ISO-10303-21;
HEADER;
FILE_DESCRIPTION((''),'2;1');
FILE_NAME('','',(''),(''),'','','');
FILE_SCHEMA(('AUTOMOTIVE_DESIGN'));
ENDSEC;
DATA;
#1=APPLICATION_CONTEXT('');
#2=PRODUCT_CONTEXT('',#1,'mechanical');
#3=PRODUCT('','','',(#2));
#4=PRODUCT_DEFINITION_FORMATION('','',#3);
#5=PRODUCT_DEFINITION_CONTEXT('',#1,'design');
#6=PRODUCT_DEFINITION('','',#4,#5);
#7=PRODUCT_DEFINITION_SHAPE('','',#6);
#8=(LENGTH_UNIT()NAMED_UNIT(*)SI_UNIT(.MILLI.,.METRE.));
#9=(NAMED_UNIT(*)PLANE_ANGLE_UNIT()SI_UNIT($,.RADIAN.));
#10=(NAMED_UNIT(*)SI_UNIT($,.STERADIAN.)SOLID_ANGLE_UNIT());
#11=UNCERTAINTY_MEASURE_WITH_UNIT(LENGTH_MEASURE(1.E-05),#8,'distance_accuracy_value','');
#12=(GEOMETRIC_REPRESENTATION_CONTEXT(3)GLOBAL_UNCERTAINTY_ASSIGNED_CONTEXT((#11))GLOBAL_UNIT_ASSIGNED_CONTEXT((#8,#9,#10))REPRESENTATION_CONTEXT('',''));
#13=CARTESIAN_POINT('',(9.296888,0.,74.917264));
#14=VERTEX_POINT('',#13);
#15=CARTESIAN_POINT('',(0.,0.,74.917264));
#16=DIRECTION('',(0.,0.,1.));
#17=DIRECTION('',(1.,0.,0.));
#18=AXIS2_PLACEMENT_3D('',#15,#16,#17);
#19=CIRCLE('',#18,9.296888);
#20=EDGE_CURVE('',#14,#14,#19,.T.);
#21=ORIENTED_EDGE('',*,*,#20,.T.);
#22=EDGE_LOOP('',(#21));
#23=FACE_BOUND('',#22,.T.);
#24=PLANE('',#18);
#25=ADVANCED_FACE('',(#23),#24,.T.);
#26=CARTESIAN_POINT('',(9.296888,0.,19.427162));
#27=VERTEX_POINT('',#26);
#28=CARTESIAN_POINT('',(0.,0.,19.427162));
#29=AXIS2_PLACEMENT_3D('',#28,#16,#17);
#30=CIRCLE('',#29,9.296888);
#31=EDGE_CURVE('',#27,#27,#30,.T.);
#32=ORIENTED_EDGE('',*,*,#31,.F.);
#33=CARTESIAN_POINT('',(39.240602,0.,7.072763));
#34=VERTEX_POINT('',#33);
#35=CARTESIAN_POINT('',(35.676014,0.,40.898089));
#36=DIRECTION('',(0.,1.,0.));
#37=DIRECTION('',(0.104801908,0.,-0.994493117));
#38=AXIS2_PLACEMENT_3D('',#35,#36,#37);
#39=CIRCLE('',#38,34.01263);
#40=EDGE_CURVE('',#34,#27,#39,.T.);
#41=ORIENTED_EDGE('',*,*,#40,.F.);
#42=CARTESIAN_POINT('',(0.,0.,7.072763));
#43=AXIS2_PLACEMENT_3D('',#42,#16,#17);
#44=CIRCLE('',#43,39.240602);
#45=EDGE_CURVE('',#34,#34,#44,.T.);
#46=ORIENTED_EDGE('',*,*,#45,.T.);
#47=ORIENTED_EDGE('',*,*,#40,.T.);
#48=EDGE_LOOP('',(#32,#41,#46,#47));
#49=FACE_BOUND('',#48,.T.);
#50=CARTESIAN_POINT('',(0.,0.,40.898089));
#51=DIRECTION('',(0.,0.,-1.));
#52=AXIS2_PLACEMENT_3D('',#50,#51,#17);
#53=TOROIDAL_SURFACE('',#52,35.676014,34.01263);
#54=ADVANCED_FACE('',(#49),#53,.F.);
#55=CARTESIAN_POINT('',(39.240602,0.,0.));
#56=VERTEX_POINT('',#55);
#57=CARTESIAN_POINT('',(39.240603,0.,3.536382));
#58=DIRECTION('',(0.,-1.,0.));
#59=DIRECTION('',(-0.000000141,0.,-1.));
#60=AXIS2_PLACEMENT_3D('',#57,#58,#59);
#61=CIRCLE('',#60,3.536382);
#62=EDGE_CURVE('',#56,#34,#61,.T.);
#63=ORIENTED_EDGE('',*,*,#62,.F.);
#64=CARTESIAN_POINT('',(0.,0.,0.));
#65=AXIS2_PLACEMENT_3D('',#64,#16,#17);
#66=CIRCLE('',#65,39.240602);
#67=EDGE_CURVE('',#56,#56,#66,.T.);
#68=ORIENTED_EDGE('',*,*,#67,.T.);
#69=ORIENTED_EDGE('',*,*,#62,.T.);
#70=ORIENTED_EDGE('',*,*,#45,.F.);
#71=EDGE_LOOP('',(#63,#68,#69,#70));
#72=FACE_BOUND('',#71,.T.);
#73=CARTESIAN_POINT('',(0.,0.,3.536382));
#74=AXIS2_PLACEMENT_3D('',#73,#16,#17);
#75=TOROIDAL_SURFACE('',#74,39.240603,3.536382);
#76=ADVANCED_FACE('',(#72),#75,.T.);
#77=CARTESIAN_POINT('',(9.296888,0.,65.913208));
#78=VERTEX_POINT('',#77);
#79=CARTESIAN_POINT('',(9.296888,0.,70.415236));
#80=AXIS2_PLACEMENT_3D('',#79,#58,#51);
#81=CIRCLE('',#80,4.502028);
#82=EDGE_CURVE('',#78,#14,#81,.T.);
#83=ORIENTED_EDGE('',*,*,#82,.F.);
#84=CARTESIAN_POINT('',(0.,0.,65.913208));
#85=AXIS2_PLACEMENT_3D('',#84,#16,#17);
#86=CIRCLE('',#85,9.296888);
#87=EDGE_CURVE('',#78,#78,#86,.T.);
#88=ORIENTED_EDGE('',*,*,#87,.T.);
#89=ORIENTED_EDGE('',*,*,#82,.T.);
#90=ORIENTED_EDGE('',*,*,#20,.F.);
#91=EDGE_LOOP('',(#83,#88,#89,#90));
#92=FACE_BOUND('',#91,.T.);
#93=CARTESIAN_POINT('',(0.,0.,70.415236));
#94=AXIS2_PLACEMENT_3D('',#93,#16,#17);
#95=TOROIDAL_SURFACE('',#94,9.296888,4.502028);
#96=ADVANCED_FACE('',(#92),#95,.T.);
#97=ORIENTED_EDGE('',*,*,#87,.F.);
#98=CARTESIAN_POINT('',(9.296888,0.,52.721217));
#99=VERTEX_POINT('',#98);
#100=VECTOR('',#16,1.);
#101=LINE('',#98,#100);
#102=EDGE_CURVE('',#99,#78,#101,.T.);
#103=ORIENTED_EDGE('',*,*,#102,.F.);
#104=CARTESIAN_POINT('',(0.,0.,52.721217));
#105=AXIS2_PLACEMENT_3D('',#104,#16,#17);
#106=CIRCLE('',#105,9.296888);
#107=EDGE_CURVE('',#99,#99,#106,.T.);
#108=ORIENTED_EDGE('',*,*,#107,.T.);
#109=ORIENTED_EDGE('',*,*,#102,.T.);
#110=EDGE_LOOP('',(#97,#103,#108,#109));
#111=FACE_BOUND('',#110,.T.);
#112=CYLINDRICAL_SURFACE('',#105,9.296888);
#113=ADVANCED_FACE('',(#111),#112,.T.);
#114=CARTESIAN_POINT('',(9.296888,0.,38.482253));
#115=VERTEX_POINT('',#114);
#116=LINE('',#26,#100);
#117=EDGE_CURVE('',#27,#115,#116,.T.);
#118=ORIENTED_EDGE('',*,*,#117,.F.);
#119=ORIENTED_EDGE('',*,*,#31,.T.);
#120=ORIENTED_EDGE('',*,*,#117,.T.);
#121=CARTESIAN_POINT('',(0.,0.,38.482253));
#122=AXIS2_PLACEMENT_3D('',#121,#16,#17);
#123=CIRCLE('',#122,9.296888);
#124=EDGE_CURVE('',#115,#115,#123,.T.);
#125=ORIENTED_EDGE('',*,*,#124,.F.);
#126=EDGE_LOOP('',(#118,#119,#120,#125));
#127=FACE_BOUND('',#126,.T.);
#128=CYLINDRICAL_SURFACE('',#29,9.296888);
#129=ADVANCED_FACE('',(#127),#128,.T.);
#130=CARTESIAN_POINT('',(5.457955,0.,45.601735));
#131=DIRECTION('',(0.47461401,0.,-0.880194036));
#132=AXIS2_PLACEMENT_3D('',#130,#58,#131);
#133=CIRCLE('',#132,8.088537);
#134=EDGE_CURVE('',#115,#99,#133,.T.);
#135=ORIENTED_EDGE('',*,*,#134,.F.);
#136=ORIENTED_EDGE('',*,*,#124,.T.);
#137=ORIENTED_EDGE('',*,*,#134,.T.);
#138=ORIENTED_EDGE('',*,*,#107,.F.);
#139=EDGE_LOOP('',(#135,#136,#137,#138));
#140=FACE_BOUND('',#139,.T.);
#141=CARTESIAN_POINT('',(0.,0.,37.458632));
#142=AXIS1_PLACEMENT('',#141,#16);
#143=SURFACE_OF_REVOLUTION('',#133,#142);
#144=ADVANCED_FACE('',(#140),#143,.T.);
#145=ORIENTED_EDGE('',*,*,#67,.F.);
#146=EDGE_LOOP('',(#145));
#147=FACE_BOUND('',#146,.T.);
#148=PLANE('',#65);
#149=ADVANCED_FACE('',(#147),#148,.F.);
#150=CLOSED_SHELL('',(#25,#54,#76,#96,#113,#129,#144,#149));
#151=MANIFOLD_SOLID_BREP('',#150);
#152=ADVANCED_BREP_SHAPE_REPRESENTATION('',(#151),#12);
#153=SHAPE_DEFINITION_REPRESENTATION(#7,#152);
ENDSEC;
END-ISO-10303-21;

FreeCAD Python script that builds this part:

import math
import FreeCAD as App
import Part
import Sketcher
from FreeCAD import Vector

doc = App.newDocument("Part")
params = doc.addObject("Spreadsheet::Sheet", "Params")
for row, (alias, value) in enumerate([
    ("revolution_angle", "360 deg"),
], start=1):
    params.set(f"A{row}", alias)
    params.set(f"B{row}", "=" + value)
    params.setAlias(f"B{row}", alias)

body = doc.addObject("PartDesign::Body", "Body")

sketch1 = body.newObject("Sketcher::SketchObject", "Sketch")
sketch1.AttachmentSupport = (doc.getObject("XZ_Plane"), [""])
sketch1.MapMode = "FlatFace"
sketch1.addGeometry(Part.LineSegment(Vector(0, 74.917264, 0), Vector(0, 0, 0)), False)
sketch1.addGeometry(Part.LineSegment(Vector(0, 0, 0), Vector(39.240602, 0, 0)), False)
sketch1.addGeometry(Part.ArcOfCircle(Part.Circle(Vector(39.240603, 3.536382, 0), Vector(0, 0, 1), 3.536382), math.radians(-90.000008), math.radians(90.000008)), False)
sketch1.addGeometry(Part.ArcOfCircle(Part.Circle(Vector(35.676014, 40.898089, 0), Vector(0, 0, 1), 34.01263), math.radians(-140.856607), math.radians(-83.984246)), False)
sketch1.addGeometry(Part.LineSegment(Vector(9.296888, 19.427162, 0), Vector(9.296888, 38.482253, 0)), False)
sketch1.addGeometry(Part.ArcOfCircle(Part.Circle(Vector(5.457955, 45.601735, 0), Vector(0, 0, 1), 8.088537), math.radians(-61.665779), math.radians(61.665779)), False)
sketch1.addGeometry(Part.LineSegment(Vector(9.296888, 52.721217, 0), Vector(9.296888, 65.913208, 0)), False)
sketch1.addGeometry(Part.ArcOfCircle(Part.Circle(Vector(9.296888, 70.415236, 0), Vector(0, 0, 1), 4.502028), math.radians(-90), math.radians(90)), False)
sketch1.addGeometry(Part.LineSegment(Vector(9.296888, 74.917264, 0), Vector(0, 74.917264, 0)), False)
sketch1.addConstraint(Sketcher.Constraint("Coincident", 0, 2, 1, 1))
sketch1.addConstraint(Sketcher.Constraint("Tangent", 1, 2, 2, 1))
sketch1.addConstraint(Sketcher.Constraint("Coincident", 2, 2, 3, 2))
sketch1.addConstraint(Sketcher.Constraint("Coincident", 3, 1, 4, 1))
sketch1.addConstraint(Sketcher.Constraint("Coincident", 4, 2, 5, 1))
sketch1.addConstraint(Sketcher.Constraint("Coincident", 5, 2, 6, 1))
sketch1.addConstraint(Sketcher.Constraint("Coincident", 6, 2, 7, 1))
sketch1.addConstraint(Sketcher.Constraint("Tangent", 7, 2, 8, 1))
sketch1.addConstraint(Sketcher.Constraint("Coincident", 8, 2, 0, 1))
sketch1.addConstraint(Sketcher.Constraint("Vertical", 0))
sketch1.addConstraint(Sketcher.Constraint("Horizontal", 1))
sketch1.addConstraint(Sketcher.Constraint("Vertical", 4))
sketch1.addConstraint(Sketcher.Constraint("Vertical", 6))
sketch1.addConstraint(Sketcher.Constraint("Horizontal", 8))
sketch1.addConstraint(Sketcher.Constraint("Coincident", 0, 2, -1, 1))
sketch1.addConstraint(Sketcher.Constraint("Vertical", 1, 2, 2, 2))
sketch1.addConstraint(Sketcher.Constraint("Vertical", 7, 3, 3, 1))
sketch1.addConstraint(Sketcher.Constraint("Vertical", 4, 2, 5, 2))
sketch1.addConstraint(Sketcher.Constraint("Radius", 2, 3.536382))
sketch1.addConstraint(Sketcher.Constraint("Radius", 3, 34.01263))
sketch1.addConstraint(Sketcher.Constraint("Radius", 5, 8.088537))
sketch1.addConstraint(Sketcher.Constraint("Radius", 7, 4.502028))
sketch1.addConstraint(Sketcher.Constraint("DistanceY", 4, 1, 4, 2, 19.055091))
sketch1.addConstraint(Sketcher.Constraint("DistanceY", 6, 1, 6, 2, 13.191991))
sketch1.addConstraint(Sketcher.Constraint("DistanceY", 5, 3, 7, 3, 24.813501))
sketch1.addConstraint(Sketcher.Constraint("DistanceY", 2, 2, 3, 1, 12.354399))
sketch1.addConstraint(Sketcher.Constraint("DistanceX", 1, 1, 1, 2, 39.240602))
sketch1.addConstraint(Sketcher.Constraint("DistanceX", 8, 2, 8, 1, 9.296888))
revolution = body.newObject("PartDesign::Revolution", "Revolution")
revolution.Profile = sketch1
revolution.ReferenceAxis = (sketch1, ["V_Axis"])
revolution.setExpression("Angle", "Params.revolution_angle")

doc.recompute()
